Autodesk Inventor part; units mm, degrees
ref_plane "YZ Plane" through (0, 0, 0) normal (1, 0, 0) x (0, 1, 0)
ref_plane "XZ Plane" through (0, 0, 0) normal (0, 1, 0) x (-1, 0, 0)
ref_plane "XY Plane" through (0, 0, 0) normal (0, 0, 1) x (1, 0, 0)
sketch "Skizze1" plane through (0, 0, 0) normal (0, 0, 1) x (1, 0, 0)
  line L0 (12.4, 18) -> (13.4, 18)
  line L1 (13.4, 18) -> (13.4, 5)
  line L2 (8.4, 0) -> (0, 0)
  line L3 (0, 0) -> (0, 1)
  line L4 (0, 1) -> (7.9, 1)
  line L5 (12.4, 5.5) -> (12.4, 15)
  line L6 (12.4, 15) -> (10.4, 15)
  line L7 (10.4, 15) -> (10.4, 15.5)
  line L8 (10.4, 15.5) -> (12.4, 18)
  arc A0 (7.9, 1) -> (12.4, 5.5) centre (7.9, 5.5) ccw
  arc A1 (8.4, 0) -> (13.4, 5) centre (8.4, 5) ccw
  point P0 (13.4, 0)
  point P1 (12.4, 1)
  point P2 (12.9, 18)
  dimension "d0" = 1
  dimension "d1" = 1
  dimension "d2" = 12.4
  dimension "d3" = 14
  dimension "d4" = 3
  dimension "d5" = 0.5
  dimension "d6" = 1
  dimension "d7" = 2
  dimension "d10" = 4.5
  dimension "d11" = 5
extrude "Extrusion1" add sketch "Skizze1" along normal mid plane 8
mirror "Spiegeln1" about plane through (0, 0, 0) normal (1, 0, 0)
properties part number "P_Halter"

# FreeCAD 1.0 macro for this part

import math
import FreeCAD as App
import Part
import Sketcher
Q = App.Units.Quantity

doc = App.newDocument("Part")
params = doc.addObject("Spreadsheet::Sheet", "Params")
for row, (alias, value) in enumerate([
    ("sketch1_radius", "5 mm"),
    ("sketch1_radius2", "4.5 mm"),
    ("sketch1_width", "1 mm"),
    ("sketch1_width2", "2 mm"),
    ("sketch1_height", "0.5 mm"),
    ("pad1_length", "8 mm"),
], start=1):
    params.set(f"A{row}", alias)
    params.set(f"B{row}", "=" + value)
    params.setAlias(f"B{row}", alias)

body = doc.addObject("PartDesign::Body", "Body")

# Sketch on XY plane
sketch1 = doc.addObject("Sketcher::SketchObject", "Sketch")
body.addObject(sketch1)
sketch1.AttachmentSupport = (doc.XY_Plane, [""])
sketch1.MapMode = "FlatFace"
sketch1.addGeometry(Part.LineSegment(App.Vector(13.4, 18, 0), App.Vector(12.4, 18, 0)), False)
sketch1.addGeometry(Part.LineSegment(App.Vector(12.4, 18, 0), App.Vector(10.4, 15.5, 0)), False)
sketch1.addGeometry(Part.LineSegment(App.Vector(10.4, 15.5, 0), App.Vector(10.4, 15, 0)), False)
sketch1.addGeometry(Part.LineSegment(App.Vector(10.4, 15, 0), App.Vector(12.4, 15, 0)), False)
sketch1.addGeometry(Part.LineSegment(App.Vector(12.4, 15, 0), App.Vector(12.4, 5.5, 0)), False)
sketch1.addGeometry(Part.ArcOfCircle(Part.Circle(App.Vector(7.9, 5.5, 0), App.Vector(0, 0, 1), 4.5), math.radians(-90), math.radians(0)), False)
sketch1.addGeometry(Part.LineSegment(App.Vector(7.9, 1, 0), App.Vector(0, 1, 0)), False)
sketch1.addGeometry(Part.LineSegment(App.Vector(0, 1, 0), App.Vector(0, 0, 0)), False)
sketch1.addGeometry(Part.LineSegment(App.Vector(0, 0, 0), App.Vector(8.4, 0, 0)), False)
sketch1.addGeometry(Part.ArcOfCircle(Part.Circle(App.Vector(8.4, 5, 0), App.Vector(0, 0, 1), 5), math.radians(-90), math.radians(0)), False)
sketch1.addGeometry(Part.LineSegment(App.Vector(13.4, 5, 0), App.Vector(13.4, 18, 0)), False)
sketch1.addConstraint(Sketcher.Constraint("Coincident", 0, 2, 1, 1))
sketch1.addConstraint(Sketcher.Constraint("Coincident", 1, 2, 2, 1))
sketch1.addConstraint(Sketcher.Constraint("Coincident", 2, 2, 3, 1))
sketch1.addConstraint(Sketcher.Constraint("Coincident", 3, 2, 4, 1))
sketch1.addConstraint(Sketcher.Constraint("Tangent", 4, 2, 5, 2))
sketch1.addConstraint(Sketcher.Constraint("Tangent", 5, 1, 6, 1))
sketch1.addConstraint(Sketcher.Constraint("Coincident", 6, 2, 7, 1))
sketch1.addConstraint(Sketcher.Constraint("Coincident", 7, 2, 8, 1))
sketch1.addConstraint(Sketcher.Constraint("Tangent", 8, 2, 9, 1))
sketch1.addConstraint(Sketcher.Constraint("Tangent", 9, 2, 10, 1))
sketch1.addConstraint(Sketcher.Constraint("Coincident", 10, 2, 0, 1))
sketch1.addConstraint(Sketcher.Constraint("Horizontal", 0))
sketch1.addConstraint(Sketcher.Constraint("Vertical", 2))
sketch1.addConstraint(Sketcher.Constraint("Horizontal", 3))
sketch1.addConstraint(Sketcher.Constraint("Vertical", 4))
sketch1.addConstraint(Sketcher.Constraint("Horizontal", 6))
sketch1.addConstraint(Sketcher.Constraint("Vertical", 7))
sketch1.addConstraint(Sketcher.Constraint("Horizontal", 8))
sketch1.addConstraint(Sketcher.Constraint("Vertical", 10))
sketch1.addConstraint(Sketcher.Constraint("Coincident", 7, 2, -1, 1))
sketch1.addConstraint(Sketcher.Constraint("Vertical", 0, 2, 3, 2))
sketch1.addConstraint(Sketcher.Constraint("Equal", 0, 7))
sketch1.addConstraint(Sketcher.Constraint("Radius", 9, Q("5 mm")))
sketch1.addConstraint(Sketcher.Constraint("Radius", 5, Q("4.5 mm")))
sketch1.addConstraint(Sketcher.Constraint("DistanceX", 0, 2, 0, 1, Q("1 mm")))
sketch1.addConstraint(Sketcher.Constraint("DistanceX", 3, 1, 3, 2, Q("2 mm")))
sketch1.addConstraint(Sketcher.Constraint("DistanceY", 2, 2, 2, 1, Q("0.5 mm")))
sketch1.addConstraint(Sketcher.Constraint("DistanceY", 2, 2, 0, 2, Q("3 mm")))
sketch1.addConstraint(Sketcher.Constraint("DistanceY", 5, 1, 2, 2, Q("14 mm")))
sketch1.addConstraint(Sketcher.Constraint("DistanceX", -1, 1, 0, 2, Q("12.4 mm")))
sketch1.setExpression("Constraints[22]", "Params.sketch1_radius")
sketch1.setExpression("Constraints[23]", "Params.sketch1_radius2")
sketch1.setExpression("Constraints[24]", "Params.sketch1_width")
sketch1.setExpression("Constraints[25]", "Params.sketch1_width2")
sketch1.setExpression("Constraints[26]", "Params.sketch1_height")
pad1 = doc.addObject("PartDesign::Pad", "Pad")
body.addObject(pad1)
pad1.Profile = sketch1
pad1.setExpression("Length", "Params.pad1_length")
pad1.Midplane = True
doc.recompute()

mirrored = doc.addObject("PartDesign::Mirrored", "Mirrored")
body.addObject(mirrored)
mirrored.TransformMode = "Transform body"
mirrored.MirrorPlane = (doc.YZ_Plane, [""])
body.Tip = mirrored

doc.recompute()
